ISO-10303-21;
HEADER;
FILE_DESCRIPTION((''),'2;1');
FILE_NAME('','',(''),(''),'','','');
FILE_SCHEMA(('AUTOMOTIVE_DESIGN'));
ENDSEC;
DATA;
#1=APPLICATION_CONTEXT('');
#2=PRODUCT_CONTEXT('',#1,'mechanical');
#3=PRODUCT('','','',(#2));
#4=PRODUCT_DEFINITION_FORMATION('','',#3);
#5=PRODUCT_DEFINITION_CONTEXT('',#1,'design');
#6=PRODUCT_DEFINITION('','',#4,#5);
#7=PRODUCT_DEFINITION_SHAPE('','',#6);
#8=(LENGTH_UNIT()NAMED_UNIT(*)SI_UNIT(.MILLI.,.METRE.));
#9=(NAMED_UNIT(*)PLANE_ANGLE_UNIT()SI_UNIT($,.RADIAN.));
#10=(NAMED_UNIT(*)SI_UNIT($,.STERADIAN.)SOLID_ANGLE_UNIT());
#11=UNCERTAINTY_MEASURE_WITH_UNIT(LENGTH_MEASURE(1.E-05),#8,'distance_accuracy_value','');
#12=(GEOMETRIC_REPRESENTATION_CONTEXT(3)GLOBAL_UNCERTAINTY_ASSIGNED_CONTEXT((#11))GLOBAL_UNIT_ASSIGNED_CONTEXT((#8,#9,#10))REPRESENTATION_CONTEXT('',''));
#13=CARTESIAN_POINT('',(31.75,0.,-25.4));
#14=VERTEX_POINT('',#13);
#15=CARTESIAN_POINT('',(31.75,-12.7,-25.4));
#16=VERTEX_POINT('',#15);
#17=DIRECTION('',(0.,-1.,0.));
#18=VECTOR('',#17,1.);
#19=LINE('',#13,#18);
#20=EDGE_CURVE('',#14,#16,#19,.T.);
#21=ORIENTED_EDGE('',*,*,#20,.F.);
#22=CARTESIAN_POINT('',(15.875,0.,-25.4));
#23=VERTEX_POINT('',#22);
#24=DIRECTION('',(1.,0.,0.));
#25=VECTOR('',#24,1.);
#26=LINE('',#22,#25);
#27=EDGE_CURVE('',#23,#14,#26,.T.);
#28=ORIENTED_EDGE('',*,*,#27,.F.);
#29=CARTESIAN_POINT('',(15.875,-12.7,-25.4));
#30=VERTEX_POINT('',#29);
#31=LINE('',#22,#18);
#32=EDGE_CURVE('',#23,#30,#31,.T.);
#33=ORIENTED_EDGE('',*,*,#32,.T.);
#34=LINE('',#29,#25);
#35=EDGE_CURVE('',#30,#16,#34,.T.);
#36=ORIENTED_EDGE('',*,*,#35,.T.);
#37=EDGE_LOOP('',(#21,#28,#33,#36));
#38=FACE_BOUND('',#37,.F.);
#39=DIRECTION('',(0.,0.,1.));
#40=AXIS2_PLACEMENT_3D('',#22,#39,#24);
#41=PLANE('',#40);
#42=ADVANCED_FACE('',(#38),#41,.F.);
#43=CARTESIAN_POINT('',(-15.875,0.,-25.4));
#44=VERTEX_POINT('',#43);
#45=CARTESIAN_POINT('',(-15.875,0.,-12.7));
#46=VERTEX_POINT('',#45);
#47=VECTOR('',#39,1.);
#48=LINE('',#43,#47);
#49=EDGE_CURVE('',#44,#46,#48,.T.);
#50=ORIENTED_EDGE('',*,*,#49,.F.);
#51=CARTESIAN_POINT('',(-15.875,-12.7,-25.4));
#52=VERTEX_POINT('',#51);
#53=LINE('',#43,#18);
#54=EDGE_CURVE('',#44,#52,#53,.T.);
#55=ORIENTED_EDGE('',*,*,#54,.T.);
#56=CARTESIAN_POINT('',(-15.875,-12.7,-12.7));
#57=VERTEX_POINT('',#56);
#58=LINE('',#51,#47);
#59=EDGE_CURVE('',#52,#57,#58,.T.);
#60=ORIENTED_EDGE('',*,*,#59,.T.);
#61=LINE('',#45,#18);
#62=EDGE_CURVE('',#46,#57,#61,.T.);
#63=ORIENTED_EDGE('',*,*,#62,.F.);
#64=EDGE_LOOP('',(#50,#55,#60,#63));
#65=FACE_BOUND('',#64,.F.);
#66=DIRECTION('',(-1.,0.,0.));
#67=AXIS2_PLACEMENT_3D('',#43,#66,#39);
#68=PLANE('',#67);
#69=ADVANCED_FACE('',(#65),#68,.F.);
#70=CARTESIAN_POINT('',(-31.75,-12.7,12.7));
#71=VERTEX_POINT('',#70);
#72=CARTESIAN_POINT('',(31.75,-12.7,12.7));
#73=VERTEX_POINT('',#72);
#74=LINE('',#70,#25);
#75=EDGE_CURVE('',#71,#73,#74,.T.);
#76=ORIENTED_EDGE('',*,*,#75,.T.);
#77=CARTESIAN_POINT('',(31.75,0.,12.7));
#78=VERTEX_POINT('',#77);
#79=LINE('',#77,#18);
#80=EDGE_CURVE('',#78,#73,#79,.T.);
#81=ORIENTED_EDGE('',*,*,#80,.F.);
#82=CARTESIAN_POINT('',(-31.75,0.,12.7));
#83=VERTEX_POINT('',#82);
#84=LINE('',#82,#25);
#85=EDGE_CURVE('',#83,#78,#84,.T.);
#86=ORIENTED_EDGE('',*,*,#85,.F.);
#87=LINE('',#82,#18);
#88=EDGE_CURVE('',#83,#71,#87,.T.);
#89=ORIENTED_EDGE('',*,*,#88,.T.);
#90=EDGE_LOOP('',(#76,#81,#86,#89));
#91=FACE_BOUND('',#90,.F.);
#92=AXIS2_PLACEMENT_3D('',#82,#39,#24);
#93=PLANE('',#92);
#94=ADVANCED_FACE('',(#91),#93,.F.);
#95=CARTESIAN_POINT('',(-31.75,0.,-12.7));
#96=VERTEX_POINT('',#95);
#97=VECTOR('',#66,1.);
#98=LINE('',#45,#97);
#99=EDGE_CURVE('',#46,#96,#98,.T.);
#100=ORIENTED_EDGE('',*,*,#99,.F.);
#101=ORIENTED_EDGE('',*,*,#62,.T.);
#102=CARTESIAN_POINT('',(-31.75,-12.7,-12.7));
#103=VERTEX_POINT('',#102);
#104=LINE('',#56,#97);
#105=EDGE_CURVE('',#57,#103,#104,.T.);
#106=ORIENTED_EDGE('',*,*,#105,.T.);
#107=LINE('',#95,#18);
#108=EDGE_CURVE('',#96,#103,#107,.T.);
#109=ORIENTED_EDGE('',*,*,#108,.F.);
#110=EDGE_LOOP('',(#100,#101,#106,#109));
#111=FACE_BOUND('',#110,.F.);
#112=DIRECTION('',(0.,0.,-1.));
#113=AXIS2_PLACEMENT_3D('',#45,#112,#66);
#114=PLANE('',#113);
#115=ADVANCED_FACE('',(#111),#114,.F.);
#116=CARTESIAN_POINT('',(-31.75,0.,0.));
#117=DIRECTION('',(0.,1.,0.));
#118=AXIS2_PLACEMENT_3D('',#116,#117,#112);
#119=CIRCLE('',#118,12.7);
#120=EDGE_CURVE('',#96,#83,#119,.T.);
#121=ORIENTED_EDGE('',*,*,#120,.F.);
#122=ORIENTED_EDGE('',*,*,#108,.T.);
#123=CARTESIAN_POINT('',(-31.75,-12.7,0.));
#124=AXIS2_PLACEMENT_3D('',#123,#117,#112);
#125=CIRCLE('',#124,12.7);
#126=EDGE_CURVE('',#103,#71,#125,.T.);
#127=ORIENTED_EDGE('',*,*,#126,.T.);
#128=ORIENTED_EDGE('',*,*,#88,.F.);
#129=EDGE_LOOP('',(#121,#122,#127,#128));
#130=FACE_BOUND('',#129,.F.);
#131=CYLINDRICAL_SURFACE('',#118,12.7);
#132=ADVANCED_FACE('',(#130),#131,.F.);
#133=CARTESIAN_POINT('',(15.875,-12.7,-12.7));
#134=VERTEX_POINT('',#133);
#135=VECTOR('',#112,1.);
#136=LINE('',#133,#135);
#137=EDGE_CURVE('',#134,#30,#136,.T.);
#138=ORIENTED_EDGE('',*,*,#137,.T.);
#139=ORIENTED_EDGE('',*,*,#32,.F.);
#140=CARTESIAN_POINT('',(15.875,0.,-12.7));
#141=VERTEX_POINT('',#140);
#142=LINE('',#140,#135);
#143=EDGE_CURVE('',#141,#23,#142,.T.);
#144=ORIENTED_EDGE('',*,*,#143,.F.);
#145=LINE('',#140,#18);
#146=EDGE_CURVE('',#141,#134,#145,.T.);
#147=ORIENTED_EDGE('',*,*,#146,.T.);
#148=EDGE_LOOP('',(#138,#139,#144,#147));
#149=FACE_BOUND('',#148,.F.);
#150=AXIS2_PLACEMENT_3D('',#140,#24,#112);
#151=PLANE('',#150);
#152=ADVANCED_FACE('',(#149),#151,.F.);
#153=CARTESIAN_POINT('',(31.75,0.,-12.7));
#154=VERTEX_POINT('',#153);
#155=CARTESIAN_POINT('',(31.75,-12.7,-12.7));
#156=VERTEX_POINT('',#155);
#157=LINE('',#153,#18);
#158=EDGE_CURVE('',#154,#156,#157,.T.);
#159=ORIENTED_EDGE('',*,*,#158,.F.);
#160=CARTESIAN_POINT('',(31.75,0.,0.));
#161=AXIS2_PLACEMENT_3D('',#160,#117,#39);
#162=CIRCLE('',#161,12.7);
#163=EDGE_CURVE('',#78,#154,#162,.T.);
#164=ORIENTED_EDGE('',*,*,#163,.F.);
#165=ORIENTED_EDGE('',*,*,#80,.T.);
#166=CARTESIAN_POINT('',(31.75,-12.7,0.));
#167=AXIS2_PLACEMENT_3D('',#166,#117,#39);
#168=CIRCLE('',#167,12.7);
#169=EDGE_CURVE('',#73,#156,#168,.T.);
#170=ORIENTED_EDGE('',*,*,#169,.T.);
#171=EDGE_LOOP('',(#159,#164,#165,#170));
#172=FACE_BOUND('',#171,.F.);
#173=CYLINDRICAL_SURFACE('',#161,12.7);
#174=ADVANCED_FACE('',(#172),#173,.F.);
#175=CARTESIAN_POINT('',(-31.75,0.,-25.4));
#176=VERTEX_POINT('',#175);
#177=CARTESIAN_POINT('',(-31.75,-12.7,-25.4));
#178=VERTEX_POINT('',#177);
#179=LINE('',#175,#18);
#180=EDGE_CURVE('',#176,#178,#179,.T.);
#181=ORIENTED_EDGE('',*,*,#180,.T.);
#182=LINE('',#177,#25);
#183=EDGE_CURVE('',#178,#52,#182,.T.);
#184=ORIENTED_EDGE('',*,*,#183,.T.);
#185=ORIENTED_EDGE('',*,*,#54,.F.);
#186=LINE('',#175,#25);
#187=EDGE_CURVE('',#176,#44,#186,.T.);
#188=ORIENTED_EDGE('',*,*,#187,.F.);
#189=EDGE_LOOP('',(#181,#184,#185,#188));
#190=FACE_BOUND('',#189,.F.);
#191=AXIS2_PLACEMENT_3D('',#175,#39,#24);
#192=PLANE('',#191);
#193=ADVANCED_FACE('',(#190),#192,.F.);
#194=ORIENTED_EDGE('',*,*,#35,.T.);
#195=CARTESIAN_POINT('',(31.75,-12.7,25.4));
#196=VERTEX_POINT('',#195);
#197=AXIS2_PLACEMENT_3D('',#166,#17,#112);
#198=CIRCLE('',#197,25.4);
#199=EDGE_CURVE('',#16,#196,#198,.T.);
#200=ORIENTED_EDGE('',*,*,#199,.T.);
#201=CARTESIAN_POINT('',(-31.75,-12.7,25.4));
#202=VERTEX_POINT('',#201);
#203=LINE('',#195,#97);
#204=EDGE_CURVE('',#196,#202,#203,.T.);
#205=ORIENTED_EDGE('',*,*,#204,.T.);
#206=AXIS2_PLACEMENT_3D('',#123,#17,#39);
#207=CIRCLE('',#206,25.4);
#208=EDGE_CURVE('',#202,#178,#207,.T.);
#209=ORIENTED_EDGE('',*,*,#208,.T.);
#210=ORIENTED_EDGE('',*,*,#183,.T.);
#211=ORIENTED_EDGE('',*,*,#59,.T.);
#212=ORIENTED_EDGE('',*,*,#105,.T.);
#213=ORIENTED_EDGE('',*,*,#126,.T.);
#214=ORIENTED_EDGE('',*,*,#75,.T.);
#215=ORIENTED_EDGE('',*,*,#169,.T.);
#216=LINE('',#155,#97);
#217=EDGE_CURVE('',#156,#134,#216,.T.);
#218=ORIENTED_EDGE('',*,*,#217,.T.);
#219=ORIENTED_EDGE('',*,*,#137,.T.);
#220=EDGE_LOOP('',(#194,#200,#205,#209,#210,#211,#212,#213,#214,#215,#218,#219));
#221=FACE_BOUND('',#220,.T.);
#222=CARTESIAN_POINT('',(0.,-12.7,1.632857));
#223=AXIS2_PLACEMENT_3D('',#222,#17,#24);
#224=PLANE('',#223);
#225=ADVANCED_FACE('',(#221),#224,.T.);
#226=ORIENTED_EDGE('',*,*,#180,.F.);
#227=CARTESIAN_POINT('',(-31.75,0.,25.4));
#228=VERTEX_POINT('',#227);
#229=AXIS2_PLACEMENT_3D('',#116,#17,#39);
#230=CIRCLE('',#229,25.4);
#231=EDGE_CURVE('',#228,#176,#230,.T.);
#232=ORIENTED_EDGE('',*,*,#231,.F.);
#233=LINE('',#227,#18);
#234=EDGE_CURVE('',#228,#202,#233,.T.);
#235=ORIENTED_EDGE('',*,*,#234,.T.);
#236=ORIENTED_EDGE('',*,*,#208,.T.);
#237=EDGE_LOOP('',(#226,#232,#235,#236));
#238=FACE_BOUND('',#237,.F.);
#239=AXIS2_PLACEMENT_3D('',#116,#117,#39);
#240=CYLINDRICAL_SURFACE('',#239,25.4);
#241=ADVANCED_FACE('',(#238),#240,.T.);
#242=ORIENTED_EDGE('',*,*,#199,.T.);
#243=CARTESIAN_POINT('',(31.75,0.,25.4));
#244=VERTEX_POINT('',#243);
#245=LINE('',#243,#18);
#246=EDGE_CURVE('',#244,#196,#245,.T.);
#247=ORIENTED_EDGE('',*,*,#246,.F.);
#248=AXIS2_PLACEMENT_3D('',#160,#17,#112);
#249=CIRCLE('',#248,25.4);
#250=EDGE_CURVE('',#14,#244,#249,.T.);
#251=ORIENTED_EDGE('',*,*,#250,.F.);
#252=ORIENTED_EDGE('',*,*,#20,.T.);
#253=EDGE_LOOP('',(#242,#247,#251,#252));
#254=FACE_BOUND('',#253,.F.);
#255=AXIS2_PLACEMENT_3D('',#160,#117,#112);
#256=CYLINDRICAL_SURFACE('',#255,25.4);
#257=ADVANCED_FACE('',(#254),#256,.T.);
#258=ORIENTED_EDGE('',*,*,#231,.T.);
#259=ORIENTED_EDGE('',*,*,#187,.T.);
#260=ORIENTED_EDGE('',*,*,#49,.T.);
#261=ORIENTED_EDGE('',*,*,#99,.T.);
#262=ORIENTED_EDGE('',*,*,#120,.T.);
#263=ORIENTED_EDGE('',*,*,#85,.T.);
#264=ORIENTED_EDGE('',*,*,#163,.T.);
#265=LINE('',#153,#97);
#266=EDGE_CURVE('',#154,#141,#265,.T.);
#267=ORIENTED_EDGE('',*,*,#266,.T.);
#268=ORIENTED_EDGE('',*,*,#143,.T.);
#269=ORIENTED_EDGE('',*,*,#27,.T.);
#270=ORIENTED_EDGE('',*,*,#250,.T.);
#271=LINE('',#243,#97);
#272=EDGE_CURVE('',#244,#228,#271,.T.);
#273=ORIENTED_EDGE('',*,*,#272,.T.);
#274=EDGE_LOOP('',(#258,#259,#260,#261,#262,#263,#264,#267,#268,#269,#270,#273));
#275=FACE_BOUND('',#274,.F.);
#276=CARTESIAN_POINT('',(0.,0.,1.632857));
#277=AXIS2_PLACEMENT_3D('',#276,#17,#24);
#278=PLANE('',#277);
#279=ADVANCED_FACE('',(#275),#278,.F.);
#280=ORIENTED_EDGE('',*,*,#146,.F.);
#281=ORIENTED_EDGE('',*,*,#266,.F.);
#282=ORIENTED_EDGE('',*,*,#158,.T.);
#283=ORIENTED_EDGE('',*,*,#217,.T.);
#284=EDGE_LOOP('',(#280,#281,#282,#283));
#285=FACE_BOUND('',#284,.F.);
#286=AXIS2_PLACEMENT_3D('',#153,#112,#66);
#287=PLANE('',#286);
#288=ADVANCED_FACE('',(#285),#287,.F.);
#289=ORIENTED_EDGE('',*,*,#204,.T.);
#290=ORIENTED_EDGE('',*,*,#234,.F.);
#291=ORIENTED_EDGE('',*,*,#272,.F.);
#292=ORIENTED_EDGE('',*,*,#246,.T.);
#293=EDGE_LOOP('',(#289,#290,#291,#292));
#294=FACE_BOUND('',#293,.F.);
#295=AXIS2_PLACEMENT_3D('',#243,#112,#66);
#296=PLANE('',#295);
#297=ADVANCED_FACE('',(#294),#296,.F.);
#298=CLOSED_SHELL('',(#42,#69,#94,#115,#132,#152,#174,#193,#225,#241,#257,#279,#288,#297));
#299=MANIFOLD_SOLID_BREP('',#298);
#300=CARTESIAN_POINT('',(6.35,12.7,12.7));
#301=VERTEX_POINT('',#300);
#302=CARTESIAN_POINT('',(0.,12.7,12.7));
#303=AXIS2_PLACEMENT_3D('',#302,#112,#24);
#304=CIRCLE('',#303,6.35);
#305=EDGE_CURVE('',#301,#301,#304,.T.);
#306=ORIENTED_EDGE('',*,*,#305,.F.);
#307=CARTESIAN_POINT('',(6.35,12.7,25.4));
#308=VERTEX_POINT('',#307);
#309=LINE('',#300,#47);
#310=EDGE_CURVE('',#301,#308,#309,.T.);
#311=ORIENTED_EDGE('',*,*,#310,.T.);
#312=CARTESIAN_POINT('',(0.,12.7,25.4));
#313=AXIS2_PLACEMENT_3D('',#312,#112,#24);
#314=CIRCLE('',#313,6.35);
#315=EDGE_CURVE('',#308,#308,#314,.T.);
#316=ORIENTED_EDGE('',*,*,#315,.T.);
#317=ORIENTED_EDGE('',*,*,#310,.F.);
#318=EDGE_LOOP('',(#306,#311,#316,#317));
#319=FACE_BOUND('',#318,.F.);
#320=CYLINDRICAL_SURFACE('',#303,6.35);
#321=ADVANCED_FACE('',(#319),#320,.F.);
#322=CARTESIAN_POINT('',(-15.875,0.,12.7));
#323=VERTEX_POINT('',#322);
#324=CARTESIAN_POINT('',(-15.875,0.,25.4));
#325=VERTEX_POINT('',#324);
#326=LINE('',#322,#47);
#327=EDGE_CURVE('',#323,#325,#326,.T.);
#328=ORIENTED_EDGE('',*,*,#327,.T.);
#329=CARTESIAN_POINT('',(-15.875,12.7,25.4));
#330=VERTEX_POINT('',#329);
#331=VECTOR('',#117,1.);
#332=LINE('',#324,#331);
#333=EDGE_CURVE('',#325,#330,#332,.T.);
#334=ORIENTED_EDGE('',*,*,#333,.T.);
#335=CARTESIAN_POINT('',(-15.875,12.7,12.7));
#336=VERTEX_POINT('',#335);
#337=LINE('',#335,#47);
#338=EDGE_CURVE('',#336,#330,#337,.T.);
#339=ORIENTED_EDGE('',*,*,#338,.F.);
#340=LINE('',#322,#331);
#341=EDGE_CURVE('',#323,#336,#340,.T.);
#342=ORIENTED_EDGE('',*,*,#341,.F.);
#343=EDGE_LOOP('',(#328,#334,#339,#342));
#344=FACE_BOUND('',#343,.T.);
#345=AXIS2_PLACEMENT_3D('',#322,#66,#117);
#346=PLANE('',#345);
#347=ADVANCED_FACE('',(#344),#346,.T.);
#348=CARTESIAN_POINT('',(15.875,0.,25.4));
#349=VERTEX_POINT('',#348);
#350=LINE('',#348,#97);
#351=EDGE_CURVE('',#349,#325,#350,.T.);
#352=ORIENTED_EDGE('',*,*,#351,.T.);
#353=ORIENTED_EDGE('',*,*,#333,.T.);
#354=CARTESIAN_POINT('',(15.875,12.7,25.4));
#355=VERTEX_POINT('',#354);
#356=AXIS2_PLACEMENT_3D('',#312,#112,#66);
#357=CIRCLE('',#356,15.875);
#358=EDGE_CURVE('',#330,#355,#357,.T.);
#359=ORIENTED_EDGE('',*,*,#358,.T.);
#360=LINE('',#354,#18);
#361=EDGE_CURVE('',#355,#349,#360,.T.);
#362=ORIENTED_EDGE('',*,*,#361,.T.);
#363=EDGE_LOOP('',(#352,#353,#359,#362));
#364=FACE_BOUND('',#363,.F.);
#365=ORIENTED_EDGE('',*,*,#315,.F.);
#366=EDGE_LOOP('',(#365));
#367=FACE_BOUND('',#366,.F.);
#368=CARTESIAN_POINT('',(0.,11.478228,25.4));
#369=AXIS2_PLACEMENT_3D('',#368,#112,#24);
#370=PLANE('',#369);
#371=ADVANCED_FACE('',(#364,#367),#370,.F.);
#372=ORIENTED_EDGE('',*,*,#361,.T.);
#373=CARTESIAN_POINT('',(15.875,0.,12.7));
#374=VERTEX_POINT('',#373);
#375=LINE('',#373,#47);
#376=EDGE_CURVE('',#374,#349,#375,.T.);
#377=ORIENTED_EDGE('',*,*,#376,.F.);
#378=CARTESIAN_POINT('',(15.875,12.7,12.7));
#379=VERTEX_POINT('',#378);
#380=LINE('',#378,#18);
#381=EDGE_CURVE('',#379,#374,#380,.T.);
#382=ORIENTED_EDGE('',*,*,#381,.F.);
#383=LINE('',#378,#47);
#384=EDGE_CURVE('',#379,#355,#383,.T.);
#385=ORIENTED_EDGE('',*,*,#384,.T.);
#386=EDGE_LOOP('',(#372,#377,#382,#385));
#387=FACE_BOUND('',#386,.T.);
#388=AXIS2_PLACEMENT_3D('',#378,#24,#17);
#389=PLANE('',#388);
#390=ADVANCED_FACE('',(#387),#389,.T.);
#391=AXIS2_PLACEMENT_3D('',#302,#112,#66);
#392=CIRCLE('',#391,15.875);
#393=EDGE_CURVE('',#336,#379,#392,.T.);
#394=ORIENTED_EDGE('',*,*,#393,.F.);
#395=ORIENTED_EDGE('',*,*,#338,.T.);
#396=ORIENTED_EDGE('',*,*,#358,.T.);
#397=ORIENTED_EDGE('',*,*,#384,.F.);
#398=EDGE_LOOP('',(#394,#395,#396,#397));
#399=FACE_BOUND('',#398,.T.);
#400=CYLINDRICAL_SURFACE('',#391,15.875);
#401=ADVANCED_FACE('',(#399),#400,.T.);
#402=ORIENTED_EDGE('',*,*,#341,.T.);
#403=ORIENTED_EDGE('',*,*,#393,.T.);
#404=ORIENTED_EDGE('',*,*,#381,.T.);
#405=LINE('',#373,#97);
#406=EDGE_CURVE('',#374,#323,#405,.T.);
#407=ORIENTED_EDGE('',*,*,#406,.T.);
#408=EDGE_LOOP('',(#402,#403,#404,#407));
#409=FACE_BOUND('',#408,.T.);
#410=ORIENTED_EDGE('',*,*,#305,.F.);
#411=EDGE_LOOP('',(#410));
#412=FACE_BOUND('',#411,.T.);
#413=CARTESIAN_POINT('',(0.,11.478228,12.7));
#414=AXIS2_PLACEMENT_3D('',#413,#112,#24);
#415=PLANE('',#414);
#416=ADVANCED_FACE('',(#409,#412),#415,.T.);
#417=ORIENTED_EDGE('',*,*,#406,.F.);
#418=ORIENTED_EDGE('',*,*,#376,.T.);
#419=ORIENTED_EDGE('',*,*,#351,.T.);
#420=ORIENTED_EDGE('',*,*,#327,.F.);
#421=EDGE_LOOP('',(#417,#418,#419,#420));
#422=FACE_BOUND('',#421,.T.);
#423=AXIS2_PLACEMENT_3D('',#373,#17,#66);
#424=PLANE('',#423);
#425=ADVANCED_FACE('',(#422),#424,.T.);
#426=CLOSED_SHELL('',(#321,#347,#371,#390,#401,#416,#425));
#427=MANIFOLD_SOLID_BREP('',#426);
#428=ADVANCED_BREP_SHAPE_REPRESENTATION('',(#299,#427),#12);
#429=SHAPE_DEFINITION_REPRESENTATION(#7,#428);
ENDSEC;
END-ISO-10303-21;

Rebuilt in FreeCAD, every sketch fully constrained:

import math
import FreeCAD as App
import Part
import Sketcher
from FreeCAD import Vector
Q = App.Units.Quantity

doc = App.newDocument("Part")
body = doc.addObject("PartDesign::Body", "Body")

sketch1 = doc.addObject("Sketcher::SketchObject", "Sketch")
body.addObject(sketch1)
sketch1.AttachmentSupport = (doc.XZ_Plane, [""])
sketch1.MapMode = "FlatFace"
sketch1.addGeometry([
    Part.LineSegment(Vector(16, -25, 0), Vector(32, -25, 0)),
    Part.ArcOfCircle(Part.Circle(Vector(32, 0, 0), Vector(0, 0, 1), 25), math.radians(-90), math.radians(90)),
    Part.LineSegment(Vector(32, 25, 0), Vector(-32, 25, 0)),
    Part.ArcOfCircle(Part.Circle(Vector(-32, 0, 0), Vector(0, 0, 1), 25), math.radians(90), math.radians(270)),
    Part.LineSegment(Vector(-32, -25, 0), Vector(-16, -25, 0)),
    Part.LineSegment(Vector(-16, -25, 0), Vector(-16, -13, 0)),
    Part.LineSegment(Vector(-16, -13, 0), Vector(-32, -13, 0)),
    Part.ArcOfCircle(Part.Circle(Vector(-32, 0, 0), Vector(0, 0, 1), 13), math.radians(90), math.radians(270)),
    Part.LineSegment(Vector(-32, 13, 0), Vector(32, 13, 0)),
    Part.ArcOfCircle(Part.Circle(Vector(32, 0, 0), Vector(0, 0, 1), 13), math.radians(-90), math.radians(90)),
    Part.LineSegment(Vector(32, -13, 0), Vector(16, -13, 0)),
    Part.LineSegment(Vector(16, -13, 0), Vector(16, -25, 0)),
], False)
sketch1.addConstraint([
    Sketcher.Constraint("Tangent", 0, 2, 1, 1),
    Sketcher.Constraint("Tangent", 1, 2, 2, 1),
    Sketcher.Constraint("Tangent", 2, 2, 3, 1),
    Sketcher.Constraint("Tangent", 3, 2, 4, 1),
    Sketcher.Constraint("Coincident", 4, 2, 5, 1),
    Sketcher.Constraint("Coincident", 5, 2, 6, 1),
    Sketcher.Constraint("Tangent", 6, 2, 7, 2),
    Sketcher.Constraint("Tangent", 7, 1, 8, 1),
    Sketcher.Constraint("Tangent", 8, 2, 9, 2),
    Sketcher.Constraint("Tangent", 9, 1, 10, 1),
    Sketcher.Constraint("Coincident", 10, 2, 11, 1),
    Sketcher.Constraint("Coincident", 11, 2, 0, 1),
    Sketcher.Constraint("Horizontal", 0),
    Sketcher.Constraint("Horizontal", 2),
    Sketcher.Constraint("Horizontal", 4),
    Sketcher.Constraint("Vertical", 5),
    Sketcher.Constraint("Horizontal", 6),
    Sketcher.Constraint("Horizontal", 8),
    Sketcher.Constraint("Horizontal", 10),
    Sketcher.Constraint("Vertical", 11),
    Sketcher.Constraint("Coincident", 7, 3, 3, 3),
    Sketcher.Constraint("Coincident", 9, 3, 1, 3),
    Sketcher.Constraint("Equal", 1, 3),
    Sketcher.Constraint("Symmetric", 1, 3, 3, 3, -1, 1),
    Sketcher.Constraint("Equal", 0, 4),
    Sketcher.Constraint("Radius", 1, Q("1 in")),
    Sketcher.Constraint("Radius", 7, Q("0.5 in")),
    Sketcher.Constraint("DistanceX", 2, 2, 2, 1, Q("2.5 in")),
    Sketcher.Constraint("DistanceX", 0, 1, 0, 2, Q("0.625 in")),
])
pad1 = doc.addObject("PartDesign::Pad", "Pad")
body.addObject(pad1)
pad1.Profile = sketch1
pad1.Length = Q("0.5 in")
body2 = doc.addObject("PartDesign::Body", "Body001")

sketch2 = doc.addObject("Sketcher::SketchObject", "Sketch001")
body2.addObject(sketch2)
sketch2.AttachmentSupport = (doc.getObject("XY_Plane001"), [""])
sketch2.MapMode = "FlatFace"
sketch2.AttachmentOffset = App.Placement(Vector(0, 0, 0.5 * 25.4), App.Rotation())
sketch2.addGeometry([
    Part.LineSegment(Vector(-16, 0, 0), Vector(-16, 13, 0)),
    Part.ArcOfCircle(Part.Circle(Vector(0, 13, 0), Vector(0, 0, 1), 16), math.radians(0), math.radians(180)),
    Part.LineSegment(Vector(16, 13, 0), Vector(16, 0, 0)),
    Part.LineSegment(Vector(16, 0, 0), Vector(-16, 0, 0)),
    Part.Circle(Vector(0, 13, 0), Vector(0, 0, 1), 6),
], False)
sketch2.addConstraint([
    Sketcher.Constraint("Tangent", 0, 2, 1, 2),
    Sketcher.Constraint("Tangent", 1, 1, 2, 1),
    Sketcher.Constraint("Coincident", 2, 2, 3, 1),
    Sketcher.Constraint("Coincident", 3, 2, 0, 1),
    Sketcher.Constraint("Vertical", 0),
    Sketcher.Constraint("Vertical", 2),
    Sketcher.Constraint("Horizontal", 3),
    Sketcher.Constraint("Coincident", 4, 3, 1, 3),
    Sketcher.Constraint("Symmetric", 2, 2, 3, 2, -1, 1),
    Sketcher.Constraint("Diameter", 4, Q("0.5 in")),
    Sketcher.Constraint("DistanceY", 0, 1, 0, 2, Q("0.5 in")),
    Sketcher.Constraint("Radius", 1, Q("0.625 in")),
])
pad2 = doc.addObject("PartDesign::Pad", "Pad001")
body2.addObject(pad2)
pad2.Profile = sketch2
pad2.Length = Q("0.5 in")

doc.recompute()
